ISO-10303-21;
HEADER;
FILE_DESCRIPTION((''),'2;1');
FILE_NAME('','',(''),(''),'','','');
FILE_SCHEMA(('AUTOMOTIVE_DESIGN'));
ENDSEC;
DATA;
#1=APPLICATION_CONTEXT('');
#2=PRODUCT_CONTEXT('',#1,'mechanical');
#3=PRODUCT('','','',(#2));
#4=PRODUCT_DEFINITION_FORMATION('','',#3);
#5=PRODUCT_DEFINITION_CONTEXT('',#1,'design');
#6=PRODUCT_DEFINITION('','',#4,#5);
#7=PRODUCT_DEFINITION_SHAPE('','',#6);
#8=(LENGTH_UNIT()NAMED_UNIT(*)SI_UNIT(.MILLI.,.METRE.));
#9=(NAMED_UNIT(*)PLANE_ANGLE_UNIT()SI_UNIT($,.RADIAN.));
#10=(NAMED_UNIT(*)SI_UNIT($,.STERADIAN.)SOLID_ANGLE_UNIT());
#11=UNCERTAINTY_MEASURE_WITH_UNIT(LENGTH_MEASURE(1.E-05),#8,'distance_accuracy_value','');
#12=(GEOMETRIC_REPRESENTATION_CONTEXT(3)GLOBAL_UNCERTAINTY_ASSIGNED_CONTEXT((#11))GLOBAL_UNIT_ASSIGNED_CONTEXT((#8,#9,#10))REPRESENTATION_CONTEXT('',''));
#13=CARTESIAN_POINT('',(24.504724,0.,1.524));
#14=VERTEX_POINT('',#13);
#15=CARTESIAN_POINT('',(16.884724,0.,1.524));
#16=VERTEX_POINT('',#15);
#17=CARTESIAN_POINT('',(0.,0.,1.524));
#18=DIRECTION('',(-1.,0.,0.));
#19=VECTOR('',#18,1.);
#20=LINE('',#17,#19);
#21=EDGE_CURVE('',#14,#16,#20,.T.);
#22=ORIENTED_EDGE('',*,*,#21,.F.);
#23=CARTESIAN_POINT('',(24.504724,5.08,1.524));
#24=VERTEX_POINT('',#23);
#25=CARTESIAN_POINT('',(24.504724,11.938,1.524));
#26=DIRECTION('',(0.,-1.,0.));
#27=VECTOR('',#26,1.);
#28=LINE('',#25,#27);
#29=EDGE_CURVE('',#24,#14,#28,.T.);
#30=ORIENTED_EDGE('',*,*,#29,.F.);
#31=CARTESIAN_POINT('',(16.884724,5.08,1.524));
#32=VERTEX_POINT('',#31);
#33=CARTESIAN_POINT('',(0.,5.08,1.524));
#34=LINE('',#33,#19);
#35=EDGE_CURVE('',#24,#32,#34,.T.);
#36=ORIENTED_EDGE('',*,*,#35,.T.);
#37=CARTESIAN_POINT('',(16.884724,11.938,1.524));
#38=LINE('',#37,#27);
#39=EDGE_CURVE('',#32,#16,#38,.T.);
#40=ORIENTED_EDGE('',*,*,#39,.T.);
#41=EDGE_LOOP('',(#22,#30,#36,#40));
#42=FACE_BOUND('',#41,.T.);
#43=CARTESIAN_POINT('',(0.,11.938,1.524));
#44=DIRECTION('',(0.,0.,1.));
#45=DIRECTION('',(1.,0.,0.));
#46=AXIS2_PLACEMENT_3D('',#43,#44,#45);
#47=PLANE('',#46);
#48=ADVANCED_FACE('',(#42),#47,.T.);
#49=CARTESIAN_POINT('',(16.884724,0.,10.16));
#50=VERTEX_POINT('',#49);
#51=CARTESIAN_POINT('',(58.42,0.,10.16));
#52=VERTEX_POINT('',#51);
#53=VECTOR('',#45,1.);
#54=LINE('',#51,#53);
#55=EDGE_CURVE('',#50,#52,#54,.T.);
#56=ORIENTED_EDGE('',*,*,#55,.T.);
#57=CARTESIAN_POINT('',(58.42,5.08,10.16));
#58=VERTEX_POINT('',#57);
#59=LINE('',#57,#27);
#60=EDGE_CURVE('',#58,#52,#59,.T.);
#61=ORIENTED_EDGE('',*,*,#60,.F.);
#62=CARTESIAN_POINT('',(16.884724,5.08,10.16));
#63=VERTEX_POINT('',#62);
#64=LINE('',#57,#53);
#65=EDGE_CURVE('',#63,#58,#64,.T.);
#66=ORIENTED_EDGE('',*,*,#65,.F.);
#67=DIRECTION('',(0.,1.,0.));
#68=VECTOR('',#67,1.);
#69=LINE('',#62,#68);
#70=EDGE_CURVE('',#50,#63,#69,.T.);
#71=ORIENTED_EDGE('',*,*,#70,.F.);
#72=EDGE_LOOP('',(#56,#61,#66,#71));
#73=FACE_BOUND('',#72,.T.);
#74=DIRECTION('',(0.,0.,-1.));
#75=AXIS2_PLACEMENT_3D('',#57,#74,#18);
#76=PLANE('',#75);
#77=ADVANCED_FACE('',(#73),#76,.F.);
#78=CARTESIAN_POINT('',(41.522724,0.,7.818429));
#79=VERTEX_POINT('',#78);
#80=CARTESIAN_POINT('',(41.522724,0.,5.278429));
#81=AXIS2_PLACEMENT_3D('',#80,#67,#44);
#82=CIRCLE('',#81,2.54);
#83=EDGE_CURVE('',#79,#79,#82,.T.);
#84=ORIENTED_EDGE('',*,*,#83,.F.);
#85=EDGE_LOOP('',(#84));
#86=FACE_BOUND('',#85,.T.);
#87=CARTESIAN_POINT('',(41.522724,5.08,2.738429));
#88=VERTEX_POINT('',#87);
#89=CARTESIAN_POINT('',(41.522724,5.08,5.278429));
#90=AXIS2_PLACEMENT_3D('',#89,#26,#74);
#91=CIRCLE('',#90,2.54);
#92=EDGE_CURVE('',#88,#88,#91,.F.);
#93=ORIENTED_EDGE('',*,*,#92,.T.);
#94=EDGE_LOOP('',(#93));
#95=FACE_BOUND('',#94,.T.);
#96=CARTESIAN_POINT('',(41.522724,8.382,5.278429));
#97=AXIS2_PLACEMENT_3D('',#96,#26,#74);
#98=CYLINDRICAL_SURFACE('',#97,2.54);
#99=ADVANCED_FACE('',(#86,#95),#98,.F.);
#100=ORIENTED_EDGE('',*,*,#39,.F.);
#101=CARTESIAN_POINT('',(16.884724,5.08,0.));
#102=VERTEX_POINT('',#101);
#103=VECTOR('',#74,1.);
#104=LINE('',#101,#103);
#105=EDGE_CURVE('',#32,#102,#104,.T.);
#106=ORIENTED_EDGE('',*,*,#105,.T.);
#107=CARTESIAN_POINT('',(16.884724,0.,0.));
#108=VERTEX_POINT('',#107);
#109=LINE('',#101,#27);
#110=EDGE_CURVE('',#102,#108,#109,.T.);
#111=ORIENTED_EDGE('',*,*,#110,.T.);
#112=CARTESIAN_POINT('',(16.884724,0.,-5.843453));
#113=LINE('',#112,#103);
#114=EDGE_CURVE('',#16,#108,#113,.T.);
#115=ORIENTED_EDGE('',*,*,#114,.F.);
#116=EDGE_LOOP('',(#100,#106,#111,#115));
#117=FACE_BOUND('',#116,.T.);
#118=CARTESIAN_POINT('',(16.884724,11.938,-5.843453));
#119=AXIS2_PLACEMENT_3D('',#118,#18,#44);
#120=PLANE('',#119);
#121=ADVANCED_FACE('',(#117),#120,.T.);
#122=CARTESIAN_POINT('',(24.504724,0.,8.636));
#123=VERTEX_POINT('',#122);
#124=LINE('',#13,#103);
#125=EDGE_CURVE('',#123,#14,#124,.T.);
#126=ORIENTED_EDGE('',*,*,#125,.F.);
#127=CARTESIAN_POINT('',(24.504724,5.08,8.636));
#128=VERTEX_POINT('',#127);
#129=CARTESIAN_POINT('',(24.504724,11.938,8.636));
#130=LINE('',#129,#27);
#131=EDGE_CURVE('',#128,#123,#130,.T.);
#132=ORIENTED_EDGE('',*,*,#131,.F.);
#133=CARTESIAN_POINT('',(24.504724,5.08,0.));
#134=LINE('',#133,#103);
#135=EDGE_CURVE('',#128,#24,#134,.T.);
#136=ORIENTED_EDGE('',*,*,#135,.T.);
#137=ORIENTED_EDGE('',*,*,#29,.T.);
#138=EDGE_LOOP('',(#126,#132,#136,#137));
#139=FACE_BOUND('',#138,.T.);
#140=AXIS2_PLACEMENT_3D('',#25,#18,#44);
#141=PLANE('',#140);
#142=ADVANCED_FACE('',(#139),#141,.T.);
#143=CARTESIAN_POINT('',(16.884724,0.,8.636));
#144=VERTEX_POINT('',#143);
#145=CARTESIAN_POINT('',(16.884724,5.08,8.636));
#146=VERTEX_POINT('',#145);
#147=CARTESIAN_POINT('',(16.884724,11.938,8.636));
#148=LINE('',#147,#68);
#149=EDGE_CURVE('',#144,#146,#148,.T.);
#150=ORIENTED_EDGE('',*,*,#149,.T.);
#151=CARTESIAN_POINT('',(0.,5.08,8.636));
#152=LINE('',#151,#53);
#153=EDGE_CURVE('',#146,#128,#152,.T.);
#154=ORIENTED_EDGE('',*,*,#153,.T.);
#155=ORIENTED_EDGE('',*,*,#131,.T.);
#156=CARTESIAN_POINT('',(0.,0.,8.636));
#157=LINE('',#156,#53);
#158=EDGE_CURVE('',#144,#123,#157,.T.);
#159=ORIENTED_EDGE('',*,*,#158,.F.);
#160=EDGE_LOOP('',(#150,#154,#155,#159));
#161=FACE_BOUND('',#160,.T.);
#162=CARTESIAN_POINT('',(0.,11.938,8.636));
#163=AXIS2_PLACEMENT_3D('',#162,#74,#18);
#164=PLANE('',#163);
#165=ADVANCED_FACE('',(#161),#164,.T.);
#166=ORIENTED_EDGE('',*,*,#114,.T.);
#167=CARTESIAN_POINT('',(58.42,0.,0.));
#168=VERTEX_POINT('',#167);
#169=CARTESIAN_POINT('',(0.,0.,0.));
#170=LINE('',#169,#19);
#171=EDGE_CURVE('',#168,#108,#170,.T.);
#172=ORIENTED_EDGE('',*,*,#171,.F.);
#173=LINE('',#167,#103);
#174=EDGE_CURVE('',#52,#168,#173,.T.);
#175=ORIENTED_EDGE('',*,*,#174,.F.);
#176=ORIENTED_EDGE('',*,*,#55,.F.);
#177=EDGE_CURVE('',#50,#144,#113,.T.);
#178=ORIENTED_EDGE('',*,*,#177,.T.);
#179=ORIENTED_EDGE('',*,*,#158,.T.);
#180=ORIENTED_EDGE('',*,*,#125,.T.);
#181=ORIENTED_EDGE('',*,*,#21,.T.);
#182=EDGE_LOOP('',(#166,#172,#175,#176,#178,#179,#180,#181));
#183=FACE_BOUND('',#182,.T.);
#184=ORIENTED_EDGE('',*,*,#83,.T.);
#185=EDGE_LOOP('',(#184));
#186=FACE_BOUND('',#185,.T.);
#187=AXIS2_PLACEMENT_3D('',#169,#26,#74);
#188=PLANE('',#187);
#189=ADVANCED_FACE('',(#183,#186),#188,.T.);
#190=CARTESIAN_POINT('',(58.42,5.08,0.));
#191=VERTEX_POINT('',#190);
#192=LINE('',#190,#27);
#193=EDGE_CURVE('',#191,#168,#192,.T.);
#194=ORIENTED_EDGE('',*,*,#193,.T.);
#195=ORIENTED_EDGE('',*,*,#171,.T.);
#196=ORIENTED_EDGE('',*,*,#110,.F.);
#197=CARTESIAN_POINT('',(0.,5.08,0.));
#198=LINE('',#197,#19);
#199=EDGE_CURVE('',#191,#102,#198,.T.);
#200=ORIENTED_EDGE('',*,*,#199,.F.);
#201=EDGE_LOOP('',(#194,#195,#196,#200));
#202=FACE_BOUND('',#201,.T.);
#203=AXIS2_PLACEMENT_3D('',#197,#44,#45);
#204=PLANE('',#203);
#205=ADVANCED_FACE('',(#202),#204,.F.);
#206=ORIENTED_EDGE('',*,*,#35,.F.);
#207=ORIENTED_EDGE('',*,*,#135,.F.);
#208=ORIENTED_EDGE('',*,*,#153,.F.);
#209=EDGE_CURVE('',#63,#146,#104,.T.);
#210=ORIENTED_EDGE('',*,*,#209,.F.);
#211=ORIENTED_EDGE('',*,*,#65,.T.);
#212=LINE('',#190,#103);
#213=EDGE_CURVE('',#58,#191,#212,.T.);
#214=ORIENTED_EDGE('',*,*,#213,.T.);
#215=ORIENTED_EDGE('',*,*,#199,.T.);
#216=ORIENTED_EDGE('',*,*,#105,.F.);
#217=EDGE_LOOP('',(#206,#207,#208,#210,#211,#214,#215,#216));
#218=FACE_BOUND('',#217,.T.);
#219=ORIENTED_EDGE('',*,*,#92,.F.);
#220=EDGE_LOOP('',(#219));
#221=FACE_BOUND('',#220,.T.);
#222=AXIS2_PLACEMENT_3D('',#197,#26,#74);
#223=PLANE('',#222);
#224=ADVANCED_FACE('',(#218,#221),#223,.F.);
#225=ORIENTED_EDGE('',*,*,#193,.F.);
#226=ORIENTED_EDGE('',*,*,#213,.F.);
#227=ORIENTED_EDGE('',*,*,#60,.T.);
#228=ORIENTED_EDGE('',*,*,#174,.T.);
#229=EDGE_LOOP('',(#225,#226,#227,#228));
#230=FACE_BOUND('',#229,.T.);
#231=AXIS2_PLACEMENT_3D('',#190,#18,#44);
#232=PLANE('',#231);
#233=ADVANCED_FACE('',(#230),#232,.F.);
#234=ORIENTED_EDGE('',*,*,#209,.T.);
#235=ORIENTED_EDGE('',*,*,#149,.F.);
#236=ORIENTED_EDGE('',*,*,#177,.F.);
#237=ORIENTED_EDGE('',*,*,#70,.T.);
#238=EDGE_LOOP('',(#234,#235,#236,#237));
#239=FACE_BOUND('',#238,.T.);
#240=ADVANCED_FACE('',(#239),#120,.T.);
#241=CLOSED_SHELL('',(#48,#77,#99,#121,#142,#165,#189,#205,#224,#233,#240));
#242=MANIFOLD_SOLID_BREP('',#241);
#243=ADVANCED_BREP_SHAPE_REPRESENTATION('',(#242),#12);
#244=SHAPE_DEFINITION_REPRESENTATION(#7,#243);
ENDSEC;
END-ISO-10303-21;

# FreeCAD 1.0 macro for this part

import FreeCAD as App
import Part
import Sketcher
from FreeCAD import Vector
Q = App.Units.Quantity

doc = App.newDocument("Part")
body = doc.addObject("PartDesign::Body", "Body")

# Sketch on XZ plane
sketch1 = body.newObject("Sketcher::SketchObject", "Sketch")
sketch1.AttachmentSupport = (doc.getObject("XZ_Plane"), [""])
sketch1.MapMode = "FlatFace"
sketch1.addGeometry(Part.LineSegment(Vector(0, 0, 0), Vector(0, 10, 0)), False)
sketch1.addGeometry(Part.LineSegment(Vector(0, 10, 0), Vector(58, 10, 0)), False)
sketch1.addGeometry(Part.LineSegment(Vector(58, 10, 0), Vector(58, 0, 0)), False)
sketch1.addGeometry(Part.LineSegment(Vector(58, 0, 0), Vector(0, 0, 0)), False)
sketch1.addConstraint(Sketcher.Constraint("Coincident", 0, 2, 1, 1))
sketch1.addConstraint(Sketcher.Constraint("Coincident", 1, 2, 2, 1))
sketch1.addConstraint(Sketcher.Constraint("Coincident", 2, 2, 3, 1))
sketch1.addConstraint(Sketcher.Constraint("Coincident", 3, 2, 0, 1))
sketch1.addConstraint(Sketcher.Constraint("Vertical", 0))
sketch1.addConstraint(Sketcher.Constraint("Horizontal", 1))
sketch1.addConstraint(Sketcher.Constraint("Vertical", 2))
sketch1.addConstraint(Sketcher.Constraint("Horizontal", 3))
sketch1.addConstraint(Sketcher.Constraint("Coincident", 3, 2, -1, 1))
sketch1.addConstraint(Sketcher.Constraint("DistanceX", 1, 1, 1, 2, Q("2.3 in")))
sketch1.addConstraint(Sketcher.Constraint("DistanceY", 0, 1, 0, 2, Q("0.4 in")))
pad1 = body.newObject("PartDesign::Pad", "Pad")
pad1.Profile = sketch1
pad1.Length = Q("0.2 in")
pad1.Reversed = True

# Sketch on XZ plane
sketch2 = body.newObject("Sketcher::SketchObject", "Sketch001")
sketch2.AttachmentSupport = (doc.getObject("XZ_Plane"), [""])
sketch2.MapMode = "FlatFace"
sketch2.addGeometry(Part.LineSegment(Vector(0, 2, 0), Vector(0, 9, 0)), False)
sketch2.addGeometry(Part.LineSegment(Vector(0, 9, 0), Vector(25, 9, 0)), False)
sketch2.addGeometry(Part.LineSegment(Vector(25, 9, 0), Vector(25, 2, 0)), False)
sketch2.addGeometry(Part.LineSegment(Vector(25, 2, 0), Vector(0, 2, 0)), False)
sketch2.addConstraint(Sketcher.Constraint("Coincident", 0, 2, 1, 1))
sketch2.addConstraint(Sketcher.Constraint("Coincident", 1, 2, 2, 1))
sketch2.addConstraint(Sketcher.Constraint("Coincident", 2, 2, 3, 1))
sketch2.addConstraint(Sketcher.Constraint("Coincident", 3, 2, 0, 1))
sketch2.addConstraint(Sketcher.Constraint("Vertical", 0))
sketch2.addConstraint(Sketcher.Constraint("Horizontal", 1))
sketch2.addConstraint(Sketcher.Constraint("Vertical", 2))
sketch2.addConstraint(Sketcher.Constraint("Horizontal", 3))
sketch2.addConstraint(Sketcher.Constraint("PointOnObject", 0, 2, -2))
sketch2.addConstraint(Sketcher.Constraint("DistanceY", 0, 1, 0, 2, Q("0.28 in")))
sketch2.addConstraint(Sketcher.Constraint("DistanceY", -1, 1, 0, 2, Q("0.34 in")))
sketch2.addConstraint(Sketcher.Constraint("DistanceX", 1, 1, 1, 2, 24.504724))
pocket1 = body.newObject("PartDesign::Pocket", "Pocket")
pocket1.Profile = sketch2
pocket1.Length = Q("0.47 in")

# Sketch on XZ plane
sketch3 = body.newObject("Sketcher::SketchObject", "Sketch002")
sketch3.AttachmentSupport = (doc.getObject("XZ_Plane"), [""])
sketch3.MapMode = "FlatFace"
sketch3.addGeometry(Part.LineSegment(Vector(0, -6, 0), Vector(0, 12, 0)), False)
sketch3.addGeometry(Part.LineSegment(Vector(0, 12, 0), Vector(17, 12, 0)), False)
sketch3.addGeometry(Part.LineSegment(Vector(17, 12, 0), Vector(17, -6, 0)), False)
sketch3.addGeometry(Part.LineSegment(Vector(17, -6, 0), Vector(0, -6, 0)), False)
sketch3.addConstraint(Sketcher.Constraint("Coincident", 0, 2, 1, 1))
sketch3.addConstraint(Sketcher.Constraint("Coincident", 1, 2, 2, 1))
sketch3.addConstraint(Sketcher.Constraint("Coincident", 2, 2, 3, 1))
sketch3.addConstraint(Sketcher.Constraint("Coincident", 3, 2, 0, 1))
sketch3.addConstraint(Sketcher.Constraint("Vertical", 0))
sketch3.addConstraint(Sketcher.Constraint("Horizontal", 1))
sketch3.addConstraint(Sketcher.Constraint("Vertical", 2))
sketch3.addConstraint(Sketcher.Constraint("Horizontal", 3))
sketch3.addConstraint(Sketcher.Constraint("DistanceY", 0, 1, 0, 2, 18.193069))
sketch3.addConstraint(Sketcher.Constraint("DistanceX", 0, 2, -1, 1, 0.090399))
sketch3.addConstraint(Sketcher.Constraint("DistanceX", 1, 1, 1, 2, 16.975123))
sketch3.addConstraint(Sketcher.Constraint("DistanceY", -1, 1, 0, 2, 12.349615))
pocket2 = body.newObject("PartDesign::Pocket", "Pocket001")
pocket2.Profile = sketch3
pocket2.Length = Q("0.47 in")

# Sketch on XZ plane
sketch4 = body.newObject("Sketcher::SketchObject", "Sketch003")
sketch4.AttachmentSupport = (doc.getObject("XZ_Plane"), [""])
sketch4.MapMode = "FlatFace"
sketch4.addGeometry(Part.Circle(Vector(41.5, 5.3, 0), Vector(0, 0, 1), 2.5), False)
sketch4.addConstraint(Sketcher.Constraint("Diameter", 0, Q("0.2 in")))
sketch4.addConstraint(Sketcher.Constraint("DistanceY", -1, 1, 0, 3, 5.278429))
sketch4.addConstraint(Sketcher.Constraint("DistanceX", -1, 1, 0, 3, 41.522724))
pocket3 = body.newObject("PartDesign::Pocket", "Pocket002")
pocket3.Profile = sketch4
pocket3.Length = Q("0.33 in")

doc.recompute()
